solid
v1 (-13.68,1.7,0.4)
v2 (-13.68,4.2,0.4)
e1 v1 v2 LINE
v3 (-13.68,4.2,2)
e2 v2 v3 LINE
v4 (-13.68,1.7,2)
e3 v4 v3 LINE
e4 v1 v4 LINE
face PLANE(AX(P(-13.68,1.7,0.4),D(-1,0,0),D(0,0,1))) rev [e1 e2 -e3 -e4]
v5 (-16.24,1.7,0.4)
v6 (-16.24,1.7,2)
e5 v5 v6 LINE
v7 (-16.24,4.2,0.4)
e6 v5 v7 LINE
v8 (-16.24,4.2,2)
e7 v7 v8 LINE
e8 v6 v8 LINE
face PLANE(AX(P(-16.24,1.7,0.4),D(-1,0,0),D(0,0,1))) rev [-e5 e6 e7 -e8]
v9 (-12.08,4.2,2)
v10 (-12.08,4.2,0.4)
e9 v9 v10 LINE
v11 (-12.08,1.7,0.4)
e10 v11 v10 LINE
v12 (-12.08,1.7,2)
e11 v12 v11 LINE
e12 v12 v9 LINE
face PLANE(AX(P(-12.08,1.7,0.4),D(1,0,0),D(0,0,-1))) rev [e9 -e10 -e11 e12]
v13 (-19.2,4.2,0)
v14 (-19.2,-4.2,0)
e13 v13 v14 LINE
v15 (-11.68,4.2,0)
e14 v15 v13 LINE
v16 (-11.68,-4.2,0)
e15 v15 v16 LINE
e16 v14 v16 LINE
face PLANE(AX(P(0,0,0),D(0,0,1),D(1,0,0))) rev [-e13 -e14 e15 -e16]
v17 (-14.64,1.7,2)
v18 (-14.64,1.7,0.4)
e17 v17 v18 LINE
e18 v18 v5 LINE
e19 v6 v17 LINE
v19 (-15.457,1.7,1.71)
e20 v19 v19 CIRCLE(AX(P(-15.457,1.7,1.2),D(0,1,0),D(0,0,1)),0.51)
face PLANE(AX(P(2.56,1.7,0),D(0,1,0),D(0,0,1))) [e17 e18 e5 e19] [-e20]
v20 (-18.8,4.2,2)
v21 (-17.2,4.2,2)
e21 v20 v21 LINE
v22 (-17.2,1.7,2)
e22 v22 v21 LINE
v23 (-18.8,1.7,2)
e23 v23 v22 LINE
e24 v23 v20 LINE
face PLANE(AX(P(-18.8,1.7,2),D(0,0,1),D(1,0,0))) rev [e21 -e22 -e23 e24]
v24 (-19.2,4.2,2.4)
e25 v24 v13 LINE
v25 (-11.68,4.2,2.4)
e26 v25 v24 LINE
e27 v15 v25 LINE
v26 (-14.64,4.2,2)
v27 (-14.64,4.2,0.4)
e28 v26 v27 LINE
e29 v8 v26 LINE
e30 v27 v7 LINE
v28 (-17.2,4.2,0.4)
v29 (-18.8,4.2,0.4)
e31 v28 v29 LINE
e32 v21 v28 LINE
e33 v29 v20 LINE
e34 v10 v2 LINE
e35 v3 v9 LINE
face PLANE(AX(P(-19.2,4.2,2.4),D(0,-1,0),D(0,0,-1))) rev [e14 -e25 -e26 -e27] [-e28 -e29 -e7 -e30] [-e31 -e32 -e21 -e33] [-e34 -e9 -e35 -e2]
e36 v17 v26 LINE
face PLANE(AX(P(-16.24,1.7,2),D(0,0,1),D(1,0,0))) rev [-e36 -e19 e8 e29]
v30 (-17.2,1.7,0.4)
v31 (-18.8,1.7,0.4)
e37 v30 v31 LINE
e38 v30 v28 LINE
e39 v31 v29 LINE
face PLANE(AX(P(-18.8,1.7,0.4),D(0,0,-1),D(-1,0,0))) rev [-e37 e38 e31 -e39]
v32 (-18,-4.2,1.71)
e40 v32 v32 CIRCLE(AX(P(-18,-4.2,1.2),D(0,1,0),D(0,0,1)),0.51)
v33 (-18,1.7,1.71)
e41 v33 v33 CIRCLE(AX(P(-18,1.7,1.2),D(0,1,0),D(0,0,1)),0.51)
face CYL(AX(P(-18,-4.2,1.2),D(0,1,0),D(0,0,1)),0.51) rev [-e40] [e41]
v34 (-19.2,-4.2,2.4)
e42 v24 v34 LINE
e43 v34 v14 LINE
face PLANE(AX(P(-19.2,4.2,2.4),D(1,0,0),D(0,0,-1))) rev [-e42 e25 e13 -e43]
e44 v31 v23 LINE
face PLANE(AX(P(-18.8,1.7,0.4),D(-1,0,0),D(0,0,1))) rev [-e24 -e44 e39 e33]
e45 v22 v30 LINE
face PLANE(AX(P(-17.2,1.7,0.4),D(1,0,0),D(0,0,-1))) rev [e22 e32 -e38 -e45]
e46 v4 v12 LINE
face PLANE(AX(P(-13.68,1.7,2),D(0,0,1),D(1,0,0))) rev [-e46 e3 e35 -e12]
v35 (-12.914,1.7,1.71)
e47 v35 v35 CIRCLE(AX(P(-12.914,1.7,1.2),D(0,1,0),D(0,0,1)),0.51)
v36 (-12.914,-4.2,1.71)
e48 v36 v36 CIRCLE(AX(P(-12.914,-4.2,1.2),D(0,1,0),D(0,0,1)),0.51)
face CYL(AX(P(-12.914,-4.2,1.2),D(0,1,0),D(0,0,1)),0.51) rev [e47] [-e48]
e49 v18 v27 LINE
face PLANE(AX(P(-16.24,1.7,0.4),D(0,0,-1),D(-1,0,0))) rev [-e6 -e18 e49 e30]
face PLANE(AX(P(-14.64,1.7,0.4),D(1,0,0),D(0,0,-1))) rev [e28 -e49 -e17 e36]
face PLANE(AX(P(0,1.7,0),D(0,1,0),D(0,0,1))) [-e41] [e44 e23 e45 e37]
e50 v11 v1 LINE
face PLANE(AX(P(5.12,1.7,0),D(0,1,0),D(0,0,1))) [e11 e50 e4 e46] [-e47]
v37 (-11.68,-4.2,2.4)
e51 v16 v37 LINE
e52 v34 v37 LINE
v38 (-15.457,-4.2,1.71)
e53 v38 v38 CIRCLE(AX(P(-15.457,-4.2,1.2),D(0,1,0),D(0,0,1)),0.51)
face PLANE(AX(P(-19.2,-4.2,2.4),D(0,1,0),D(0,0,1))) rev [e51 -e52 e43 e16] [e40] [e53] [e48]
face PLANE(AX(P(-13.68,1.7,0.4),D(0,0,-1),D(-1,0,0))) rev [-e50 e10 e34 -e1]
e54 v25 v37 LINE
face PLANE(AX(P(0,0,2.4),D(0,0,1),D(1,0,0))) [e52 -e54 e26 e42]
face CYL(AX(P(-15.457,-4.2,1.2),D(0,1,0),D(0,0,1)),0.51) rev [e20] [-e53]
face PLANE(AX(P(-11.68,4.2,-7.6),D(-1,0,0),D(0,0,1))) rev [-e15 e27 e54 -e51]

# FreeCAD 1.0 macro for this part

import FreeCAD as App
import Part
import Sketcher

V = App.Vector
Q = App.Units.Quantity

doc = App.newDocument("Part")
body = doc.addObject("PartDesign::Body", "Body")

sketch1 = body.newObject("Sketcher::SketchObject", "Sketch")
sketch1.AttachmentSupport = (doc.getObject("XY_Plane"), [""])
sketch1.MapMode = "FlatFace"
sketch1.addGeometry(Part.LineSegment(V(-19, 4, 0), V(-19, -4, 0)), False)
sketch1.addGeometry(Part.LineSegment(V(-19, -4, 0), V(19, -4, 0)), False)
sketch1.addGeometry(Part.LineSegment(V(19, -4, 0), V(19, 4, 0)), False)
sketch1.addGeometry(Part.LineSegment(V(19, 4, 0), V(-19, 4, 0)), False)
sketch1.addConstraint(Sketcher.Constraint("Coincident", 0, 2, 1, 1))
sketch1.addConstraint(Sketcher.Constraint("Coincident", 1, 2, 2, 1))
sketch1.addConstraint(Sketcher.Constraint("Coincident", 2, 2, 3, 1))
sketch1.addConstraint(Sketcher.Constraint("Coincident", 3, 2, 0, 1))
sketch1.addConstraint(Sketcher.Constraint("Vertical", 0))
sketch1.addConstraint(Sketcher.Constraint("Horizontal", 1))
sketch1.addConstraint(Sketcher.Constraint("Vertical", 2))
sketch1.addConstraint(Sketcher.Constraint("Horizontal", 3))
sketch1.addConstraint(Sketcher.Constraint("Symmetric", 0, 2, 2, 2, -1, 1))
sketch1.addConstraint(Sketcher.Constraint("DistanceX", 1, 1, 1, 2, Q("38.4 mm")))
sketch1.addConstraint(Sketcher.Constraint("DistanceY", 0, 2, 0, 1, Q("8.4 mm")))
pad1 = body.newObject("PartDesign::Pad", "Pad")
pad1.Profile = sketch1
pad1.Length = 2.4

sketch2 = body.newObject("Sketcher::SketchObject", "Sketch001")
sketch2.AttachmentSupport = (doc.getObject("XZ_Plane"), [""])
sketch2.MapMode = "FlatFace"
sketch2.AttachmentOffset = App.Placement(V(0, 0, -4.2), App.Rotation())
sketch2.addGeometry(Part.LineSegment(V(-18.8, 0.4, 0), V(-18.8, 2, 0)), False)
sketch2.addGeometry(Part.LineSegment(V(-18.8, 2, 0), V(-17.2, 2, 0)), False)
sketch2.addGeometry(Part.LineSegment(V(-17.2, 2, 0), V(-17.2, 0.4, 0)), False)
sketch2.addGeometry(Part.LineSegment(V(-17.2, 0.4, 0), V(-18.8, 0.4, 0)), False)
sketch2.addConstraint(Sketcher.Constraint("Coincident", 0, 2, 1, 1))
sketch2.addConstraint(Sketcher.Constraint("Coincident", 1, 2, 2, 1))
sketch2.addConstraint(Sketcher.Constraint("Coincident", 2, 2, 3, 1))
sketch2.addConstraint(Sketcher.Constraint("Coincident", 3, 2, 0, 1))
sketch2.addConstraint(Sketcher.Constraint("Vertical", 0))
sketch2.addConstraint(Sketcher.Constraint("Horizontal", 1))
sketch2.addConstraint(Sketcher.Constraint("Vertical", 2))
sketch2.addConstraint(Sketcher.Constraint("Horizontal", 3))
sketch2.addConstraint(Sketcher.Constraint("Equal", 3, 0))
sketch2.addConstraint(Sketcher.Constraint("DistanceX", 1, 1, 1, 2, Q("1.6 mm")))
sketch2.addConstraint(Sketcher.Constraint("DistanceY", -1, 1, 0, 2, Q("2 mm")))
sketch2.addConstraint(Sketcher.Constraint("DistanceX", 0, 2, -1, 1, Q("18.8 mm")))
pocket1 = body.newObject("PartDesign::Pocket", "Pocket")
pocket1.Profile = sketch2
pocket1.Length = 2.5
pocket1.Reversed = True
doc.recompute()

linearpattern = body.newObject("PartDesign::LinearPattern", "LinearPattern")
linearpattern.Originals = [pocket1]
linearpattern.Direction = (doc.getObject("X_Axis"), [""])
linearpattern.Mode = "offset"
linearpattern.Offset = 2.56
linearpattern.Occurrences = 16
body.Tip = linearpattern

sketch3 = body.newObject("Sketcher::SketchObject", "Sketch002")
sketch3.AttachmentSupport = (doc.getObject("XZ_Plane"), [""])
sketch3.MapMode = "FlatFace"
sketch3.AttachmentOffset = App.Placement(V(0, 0, -1.7), App.Rotation())
sketch3.addGeometry(Part.Circle(V(-18, 1.2, 0), V(0, 0, 1), 0.5), False)
sketch3.addConstraint(Sketcher.Constraint("Diameter", 0, Q("1.02 mm")))
sketch3.addConstraint(Sketcher.Constraint("DistanceX", 0, 3, -1, 1, Q("18 mm")))
sketch3.addConstraint(Sketcher.Constraint("DistanceY", -1, 1, 0, 3, Q("1.2 mm")))
pocket2 = body.newObject("PartDesign::Pocket", "Pocket001")
pocket2.Profile = sketch3
pocket2.Type = "ThroughAll"
pocket2.Reversed = True
doc.recompute()

linearpattern2 = body.newObject("PartDesign::LinearPattern", "LinearPattern001")
linearpattern2.Originals = [pocket2]
linearpattern2.Direction = (doc.getObject("X_Axis"), [""])
linearpattern2.Mode = "offset"
linearpattern2.Offset = 2.543
linearpattern2.Occurrences = 15
body.Tip = linearpattern2

sketch4 = body.newObject("Sketcher::SketchObject", "Sketch003")
sketch4.AttachmentSupport = (doc.getObject("XY_Plane"), [""])
sketch4.MapMode = "FlatFace"
sketch4.AttachmentOffset = App.Placement(V(0, 0, 2.4), App.Rotation())
sketch4.addGeometry(Part.LineSegment(V(1, 4, 0), V(1, -4, 0)), False)
sketch4.addGeometry(Part.LineSegment(V(1, -4, 0), V(19, -4, 0)), False)
sketch4.addGeometry(Part.LineSegment(V(19, -4, 0), V(19, 4, 0)), False)
sketch4.addGeometry(Part.LineSegment(V(19, 4, 0), V(1, 4, 0)), False)
sketch4.addConstraint(Sketcher.Constraint("Coincident", 0, 2, 1, 1))
sketch4.addConstraint(Sketcher.Constraint("Coincident", 1, 2, 2, 1))
sketch4.addConstraint(Sketcher.Constraint("Coincident", 2, 2, 3, 1))
sketch4.addConstraint(Sketcher.Constraint("Coincident", 3, 2, 0, 1))
sketch4.addConstraint(Sketcher.Constraint("Vertical", 0))
sketch4.addConstraint(Sketcher.Constraint("Horizontal", 1))
sketch4.addConstraint(Sketcher.Constraint("Vertical", 2))
sketch4.addConstraint(Sketcher.Constraint("Horizontal", 3))
sketch4.addConstraint(Sketcher.Constraint("DistanceY", 0, 2, 0, 1, Q("8.4 mm")))
sketch4.addConstraint(Sketcher.Constraint("DistanceY", 0, 2, -1, 1, Q("4.2 mm")))
sketch4.addConstraint(Sketcher.Constraint("DistanceX", -1, 1, 1, 2, Q("19.2 mm")))
sketch4.addConstraint(Sketcher.Constraint("DistanceX", 1, 1, 1, 2, Q("18.080221 mm")))
pocket3 = body.newObject("PartDesign::Pocket", "Pocket002")
pocket3.Profile = sketch4
pocket3.Length = 10

sketch5 = body.newObject("Sketcher::SketchObject", "Sketch004")
sketch5.AttachmentSupport = (doc.getObject("XY_Plane"), [""])
sketch5.MapMode = "FlatFace"
sketch5.AttachmentOffset = App.Placement(V(0, 0, 2.4), App.Rotation())
sketch5.addGeometry(Part.LineSegment(V(-12, 4, 0), V(-12, -4, 0)), False)
sketch5.addGeometry(Part.LineSegment(V(-12, -4, 0), V(1, -4, 0)), False)
sketch5.addGeometry(Part.LineSegment(V(1, -4, 0), V(1, 4, 0)), False)
sketch5.addGeometry(Part.LineSegment(V(1, 4, 0), V(-12, 4, 0)), False)
sketch5.addConstraint(Sketcher.Constraint("Coincident", 0, 2, 1, 1))
sketch5.addConstraint(Sketcher.Constraint("Coincident", 1, 2, 2, 1))
sketch5.addConstraint(Sketcher.Constraint("Coincident", 2, 2, 3, 1))
sketch5.addConstraint(Sketcher.Constraint("Coincident", 3, 2, 0, 1))
sketch5.addConstraint(Sketcher.Constraint("Vertical", 0))
sketch5.addConstraint(Sketcher.Constraint("Horizontal", 1))
sketch5.addConstraint(Sketcher.Constraint("Vertical", 2))
sketch5.addConstraint(Sketcher.Constraint("Horizontal", 3))
sketch5.addConstraint(Sketcher.Constraint("DistanceY", 0, 2, 0, 1, Q("8.4 mm")))
sketch5.addConstraint(Sketcher.Constraint("DistanceY", 0, 2, -1, 1, Q("4.2 mm")))
sketch5.addConstraint(Sketcher.Constraint("DistanceX", 0, 2, -1, 1, Q("11.68 mm")))
sketch5.addConstraint(Sketcher.Constraint("DistanceX", 1, 1, 1, 2, Q("12.799779 mm")))
pocket4 = body.newObject("PartDesign::Pocket", "Pocket003")
pocket4.Profile = sketch5
pocket4.Length = 10

doc.recompute()
